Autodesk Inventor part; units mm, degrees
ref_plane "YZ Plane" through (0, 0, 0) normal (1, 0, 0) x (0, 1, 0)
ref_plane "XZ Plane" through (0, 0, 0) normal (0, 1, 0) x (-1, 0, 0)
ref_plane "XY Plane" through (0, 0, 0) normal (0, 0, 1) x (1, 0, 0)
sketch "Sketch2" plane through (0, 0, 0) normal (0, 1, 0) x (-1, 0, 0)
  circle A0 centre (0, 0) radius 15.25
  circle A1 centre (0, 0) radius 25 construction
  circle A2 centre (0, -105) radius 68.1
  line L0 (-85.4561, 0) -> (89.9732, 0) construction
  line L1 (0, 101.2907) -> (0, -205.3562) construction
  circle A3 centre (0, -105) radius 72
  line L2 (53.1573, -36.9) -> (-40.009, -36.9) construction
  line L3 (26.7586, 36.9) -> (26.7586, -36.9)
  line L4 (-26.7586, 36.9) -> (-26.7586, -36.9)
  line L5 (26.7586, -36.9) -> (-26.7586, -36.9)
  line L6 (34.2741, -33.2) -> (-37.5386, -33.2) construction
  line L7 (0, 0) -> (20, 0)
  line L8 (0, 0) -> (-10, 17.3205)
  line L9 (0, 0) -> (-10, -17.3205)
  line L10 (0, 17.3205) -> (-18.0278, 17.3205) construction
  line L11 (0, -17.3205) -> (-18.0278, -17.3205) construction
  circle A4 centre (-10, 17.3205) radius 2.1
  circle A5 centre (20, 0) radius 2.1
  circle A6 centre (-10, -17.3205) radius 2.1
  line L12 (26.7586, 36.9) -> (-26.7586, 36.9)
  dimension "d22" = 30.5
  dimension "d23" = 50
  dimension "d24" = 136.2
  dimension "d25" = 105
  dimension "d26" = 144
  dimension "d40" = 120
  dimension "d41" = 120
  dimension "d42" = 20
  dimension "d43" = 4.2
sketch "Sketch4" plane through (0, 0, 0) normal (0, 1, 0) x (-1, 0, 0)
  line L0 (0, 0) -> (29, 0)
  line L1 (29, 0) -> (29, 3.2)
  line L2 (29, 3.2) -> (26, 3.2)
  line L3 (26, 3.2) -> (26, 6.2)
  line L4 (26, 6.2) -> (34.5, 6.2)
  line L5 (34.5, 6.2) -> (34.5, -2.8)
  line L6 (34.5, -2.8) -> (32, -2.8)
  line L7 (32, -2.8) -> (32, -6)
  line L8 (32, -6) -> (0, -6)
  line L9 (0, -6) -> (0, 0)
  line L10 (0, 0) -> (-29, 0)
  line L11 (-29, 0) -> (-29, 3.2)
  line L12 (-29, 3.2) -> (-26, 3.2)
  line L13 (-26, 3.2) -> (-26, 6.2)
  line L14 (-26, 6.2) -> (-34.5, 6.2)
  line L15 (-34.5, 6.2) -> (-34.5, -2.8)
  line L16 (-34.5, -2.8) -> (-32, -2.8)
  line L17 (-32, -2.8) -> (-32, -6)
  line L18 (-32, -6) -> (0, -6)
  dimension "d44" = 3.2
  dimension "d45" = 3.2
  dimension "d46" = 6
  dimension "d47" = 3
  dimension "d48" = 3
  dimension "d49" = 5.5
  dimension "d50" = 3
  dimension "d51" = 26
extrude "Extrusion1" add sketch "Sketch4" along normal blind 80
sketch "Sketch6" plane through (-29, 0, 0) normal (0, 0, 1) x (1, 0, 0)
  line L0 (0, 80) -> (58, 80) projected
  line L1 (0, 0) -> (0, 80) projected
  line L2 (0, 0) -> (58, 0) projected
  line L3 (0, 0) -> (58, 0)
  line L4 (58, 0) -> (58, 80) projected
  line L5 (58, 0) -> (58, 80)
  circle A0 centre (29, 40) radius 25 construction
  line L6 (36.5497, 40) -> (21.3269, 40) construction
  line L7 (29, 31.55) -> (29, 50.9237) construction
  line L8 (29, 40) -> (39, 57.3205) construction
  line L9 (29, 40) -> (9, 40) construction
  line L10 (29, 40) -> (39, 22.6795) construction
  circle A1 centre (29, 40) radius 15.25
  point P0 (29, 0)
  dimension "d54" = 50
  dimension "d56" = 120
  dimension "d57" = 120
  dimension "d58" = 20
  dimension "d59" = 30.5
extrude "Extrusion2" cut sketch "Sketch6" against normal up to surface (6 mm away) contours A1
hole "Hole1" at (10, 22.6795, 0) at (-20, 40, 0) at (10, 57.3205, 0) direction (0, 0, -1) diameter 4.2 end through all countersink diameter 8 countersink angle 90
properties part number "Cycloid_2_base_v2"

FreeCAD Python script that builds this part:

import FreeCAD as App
import Part
import Sketcher

doc = App.newDocument("Part")
body = doc.addObject("PartDesign::Body", "Body")

sketch1 = body.newObject("Sketcher::SketchObject", "Sketch")
sketch1.AttachmentSupport = (doc.getObject("XZ_Plane"), [""])
sketch1.MapMode = "FlatFace"
sketch1.addGeometry(Part.LineSegment(App.Vector(-29, 0, 0), App.Vector(29, 0, 0)), False)
sketch1.addGeometry(Part.LineSegment(App.Vector(29, 0, 0), App.Vector(29, 3.2, 0)), False)
sketch1.addGeometry(Part.LineSegment(App.Vector(29, 3.2, 0), App.Vector(26, 3.2, 0)), False)
sketch1.addGeometry(Part.LineSegment(App.Vector(26, 3.2, 0), App.Vector(26, 6.2, 0)), False)
sketch1.addGeometry(Part.LineSegment(App.Vector(26, 6.2, 0), App.Vector(34.5, 6.2, 0)), False)
sketch1.addGeometry(Part.LineSegment(App.Vector(34.5, 6.2, 0), App.Vector(34.5, -2.8, 0)), False)
sketch1.addGeometry(Part.LineSegment(App.Vector(34.5, -2.8, 0), App.Vector(32, -2.8, 0)), False)
sketch1.addGeometry(Part.LineSegment(App.Vector(32, -2.8, 0), App.Vector(32, -6, 0)), False)
sketch1.addGeometry(Part.LineSegment(App.Vector(32, -6, 0), App.Vector(-32, -6, 0)), False)
sketch1.addGeometry(Part.LineSegment(App.Vector(-32, -6, 0), App.Vector(-32, -2.8, 0)), False)
sketch1.addGeometry(Part.LineSegment(App.Vector(-32, -2.8, 0), App.Vector(-34.5, -2.8, 0)), False)
sketch1.addGeometry(Part.LineSegment(App.Vector(-34.5, -2.8, 0), App.Vector(-34.5, 6.2, 0)), False)
sketch1.addGeometry(Part.LineSegment(App.Vector(-34.5, 6.2, 0), App.Vector(-26, 6.2, 0)), False)
sketch1.addGeometry(Part.LineSegment(App.Vector(-26, 6.2, 0), App.Vector(-26, 3.2, 0)), False)
sketch1.addGeometry(Part.LineSegment(App.Vector(-26, 3.2, 0), App.Vector(-29, 3.2, 0)), False)
sketch1.addGeometry(Part.LineSegment(App.Vector(-29, 3.2, 0), App.Vector(-29, 0, 0)), False)
sketch1.addConstraint(Sketcher.Constraint("Coincident", 0, 2, 1, 1))
sketch1.addConstraint(Sketcher.Constraint("Coincident", 1, 2, 2, 1))
sketch1.addConstraint(Sketcher.Constraint("Coincident", 2, 2, 3, 1))
sketch1.addConstraint(Sketcher.Constraint("Coincident", 3, 2, 4, 1))
sketch1.addConstraint(Sketcher.Constraint("Coincident", 4, 2, 5, 1))
sketch1.addConstraint(Sketcher.Constraint("Coincident", 5, 2, 6, 1))
sketch1.addConstraint(Sketcher.Constraint("Coincident", 6, 2, 7, 1))
sketch1.addConstraint(Sketcher.Constraint("Coincident", 7, 2, 8, 1))
sketch1.addConstraint(Sketcher.Constraint("Coincident", 8, 2, 9, 1))
sketch1.addConstraint(Sketcher.Constraint("Coincident", 9, 2, 10, 1))
sketch1.addConstraint(Sketcher.Constraint("Coincident", 10, 2, 11, 1))
sketch1.addConstraint(Sketcher.Constraint("Coincident", 11, 2, 12, 1))
sketch1.addConstraint(Sketcher.Constraint("Coincident", 12, 2, 13, 1))
sketch1.addConstraint(Sketcher.Constraint("Coincident", 13, 2, 14, 1))
sketch1.addConstraint(Sketcher.Constraint("Coincident", 14, 2, 15, 1))
sketch1.addConstraint(Sketcher.Constraint("Coincident", 15, 2, 0, 1))
sketch1.addConstraint(Sketcher.Constraint("Horizontal", 0))
sketch1.addConstraint(Sketcher.Constraint("Vertical", 1))
sketch1.addConstraint(Sketcher.Constraint("Horizontal", 2))
sketch1.addConstraint(Sketcher.Constraint("Vertical", 3))
sketch1.addConstraint(Sketcher.Constraint("Horizontal", 4))
sketch1.addConstraint(Sketcher.Constraint("Vertical", 5))
sketch1.addConstraint(Sketcher.Constraint("Horizontal", 6))
sketch1.addConstraint(Sketcher.Constraint("Vertical", 7))
sketch1.addConstraint(Sketcher.Constraint("Horizontal", 8))
sketch1.addConstraint(Sketcher.Constraint("Vertical", 9))
sketch1.addConstraint(Sketcher.Constraint("Horizontal", 10))
sketch1.addConstraint(Sketcher.Constraint("Vertical", 11))
sketch1.addConstraint(Sketcher.Constraint("Horizontal", 12))
sketch1.addConstraint(Sketcher.Constraint("Vertical", 13))
sketch1.addConstraint(Sketcher.Constraint("Horizontal", 14))
sketch1.addConstraint(Sketcher.Constraint("Vertical", 15))
sketch1.addConstraint(Sketcher.Constraint("Symmetric", 0, 2, 15, 2, -1, 1))
sketch1.addConstraint(Sketcher.Constraint("Symmetric", 6, 2, 9, 2, -2))
sketch1.addConstraint(Sketcher.Constraint("Symmetric", 4, 2, 11, 2, -2))
sketch1.addConstraint(Sketcher.Constraint("Symmetric", 2, 2, 13, 2, -2))
sketch1.addConstraint(Sketcher.Constraint("Equal", 14, 3))
sketch1.addConstraint(Sketcher.Constraint("Equal", 1, 7))
sketch1.addConstraint(Sketcher.Constraint("DistanceX", 2, 2, 2, 1, 3.0))
sketch1.addConstraint(Sketcher.Constraint("DistanceY", 1, 1, 1, 2, 3.2))
sketch1.addConstraint(Sketcher.Constraint("DistanceX", -1, 1, 2, 2, 26.0))
sketch1.addConstraint(Sketcher.Constraint("DistanceY", 7, 2, -1, 1, 6.0))
sketch1.addConstraint(Sketcher.Constraint("DistanceX", 0, 2, 6, 2, 3.0))
sketch1.addConstraint(Sketcher.Constraint("DistanceX", 1, 2, 4, 2, 5.5))
pad1 = body.newObject("PartDesign::Pad", "Pad")
pad1.Profile = sketch1
pad1.Length = 80
pad1.Reversed = True

sketch2 = body.newObject("Sketcher::SketchObject", "Sketch001")
sketch2.AttachmentSupport = (doc.getObject("XY_Plane"), [""])
sketch2.MapMode = "FlatFace"
sketch2.addGeometry(Part.Circle(App.Vector(0, 40, 0), App.Vector(0, 0, 1), 15.25), False)
sketch2.addConstraint(Sketcher.Constraint("PointOnObject", 0, 3, -2))
sketch2.addConstraint(Sketcher.Constraint("Diameter", 0, 30.5))
sketch2.addConstraint(Sketcher.Constraint("DistanceY", -1, 1, 0, 3, 40.0))
pocket1 = body.newObject("PartDesign::Pocket", "Pocket")
pocket1.Profile = sketch2
pocket1.Length = 6

sketch3 = body.newObject("Sketcher::SketchObject", "Sketch002")
sketch3.AttachmentSupport = (doc.getObject("XY_Plane"), [""])
sketch3.MapMode = "FlatFace"
sketch3.addGeometry(Part.Circle(App.Vector(10, 22.6795, 0), App.Vector(0, 0, 1), 2.1), False)
sketch3.addGeometry(Part.Circle(App.Vector(-20, 40, 0), App.Vector(0, 0, 1), 2.1), False)
sketch3.addGeometry(Part.Circle(App.Vector(10, 57.3205, 0), App.Vector(0, 0, 1), 2.1), False)
sketch3.addConstraint(Sketcher.Constraint("Equal", 0, 1))
sketch3.addConstraint(Sketcher.Constraint("Equal", 1, 2))
sketch3.addConstraint(Sketcher.Constraint("Vertical", 0, 3, 2, 3))
sketch3.addConstraint(Sketcher.Constraint("Diameter", 0, 4.2))
sketch3.addConstraint(Sketcher.Constraint("DistanceX", -1, 1, 0, 3, 10.0))
sketch3.addConstraint(Sketcher.Constraint("DistanceX", 1, 3, -1, 1, 20.0))
sketch3.addConstraint(Sketcher.Constraint("DistanceY", -1, 1, 1, 3, 40.0))
sketch3.addConstraint(Sketcher.Constraint("DistanceY", 0, 3, 2, 3, 34.641))
sketch3.addConstraint(Sketcher.Constraint("DistanceY", -1, 1, 0, 3, 22.6795))
doc.recompute()
hole = body.newObject("PartDesign::Hole", "Hole")
hole.Profile = sketch3
hole.ThreadType = "None"
hole.Diameter = 4.2
hole.DepthType = "ThroughAll"
hole.HoleCutType = "Countersink"
hole.HoleCutDiameter = 8
hole.HoleCutCountersinkAngle = 90

doc.recompute()
